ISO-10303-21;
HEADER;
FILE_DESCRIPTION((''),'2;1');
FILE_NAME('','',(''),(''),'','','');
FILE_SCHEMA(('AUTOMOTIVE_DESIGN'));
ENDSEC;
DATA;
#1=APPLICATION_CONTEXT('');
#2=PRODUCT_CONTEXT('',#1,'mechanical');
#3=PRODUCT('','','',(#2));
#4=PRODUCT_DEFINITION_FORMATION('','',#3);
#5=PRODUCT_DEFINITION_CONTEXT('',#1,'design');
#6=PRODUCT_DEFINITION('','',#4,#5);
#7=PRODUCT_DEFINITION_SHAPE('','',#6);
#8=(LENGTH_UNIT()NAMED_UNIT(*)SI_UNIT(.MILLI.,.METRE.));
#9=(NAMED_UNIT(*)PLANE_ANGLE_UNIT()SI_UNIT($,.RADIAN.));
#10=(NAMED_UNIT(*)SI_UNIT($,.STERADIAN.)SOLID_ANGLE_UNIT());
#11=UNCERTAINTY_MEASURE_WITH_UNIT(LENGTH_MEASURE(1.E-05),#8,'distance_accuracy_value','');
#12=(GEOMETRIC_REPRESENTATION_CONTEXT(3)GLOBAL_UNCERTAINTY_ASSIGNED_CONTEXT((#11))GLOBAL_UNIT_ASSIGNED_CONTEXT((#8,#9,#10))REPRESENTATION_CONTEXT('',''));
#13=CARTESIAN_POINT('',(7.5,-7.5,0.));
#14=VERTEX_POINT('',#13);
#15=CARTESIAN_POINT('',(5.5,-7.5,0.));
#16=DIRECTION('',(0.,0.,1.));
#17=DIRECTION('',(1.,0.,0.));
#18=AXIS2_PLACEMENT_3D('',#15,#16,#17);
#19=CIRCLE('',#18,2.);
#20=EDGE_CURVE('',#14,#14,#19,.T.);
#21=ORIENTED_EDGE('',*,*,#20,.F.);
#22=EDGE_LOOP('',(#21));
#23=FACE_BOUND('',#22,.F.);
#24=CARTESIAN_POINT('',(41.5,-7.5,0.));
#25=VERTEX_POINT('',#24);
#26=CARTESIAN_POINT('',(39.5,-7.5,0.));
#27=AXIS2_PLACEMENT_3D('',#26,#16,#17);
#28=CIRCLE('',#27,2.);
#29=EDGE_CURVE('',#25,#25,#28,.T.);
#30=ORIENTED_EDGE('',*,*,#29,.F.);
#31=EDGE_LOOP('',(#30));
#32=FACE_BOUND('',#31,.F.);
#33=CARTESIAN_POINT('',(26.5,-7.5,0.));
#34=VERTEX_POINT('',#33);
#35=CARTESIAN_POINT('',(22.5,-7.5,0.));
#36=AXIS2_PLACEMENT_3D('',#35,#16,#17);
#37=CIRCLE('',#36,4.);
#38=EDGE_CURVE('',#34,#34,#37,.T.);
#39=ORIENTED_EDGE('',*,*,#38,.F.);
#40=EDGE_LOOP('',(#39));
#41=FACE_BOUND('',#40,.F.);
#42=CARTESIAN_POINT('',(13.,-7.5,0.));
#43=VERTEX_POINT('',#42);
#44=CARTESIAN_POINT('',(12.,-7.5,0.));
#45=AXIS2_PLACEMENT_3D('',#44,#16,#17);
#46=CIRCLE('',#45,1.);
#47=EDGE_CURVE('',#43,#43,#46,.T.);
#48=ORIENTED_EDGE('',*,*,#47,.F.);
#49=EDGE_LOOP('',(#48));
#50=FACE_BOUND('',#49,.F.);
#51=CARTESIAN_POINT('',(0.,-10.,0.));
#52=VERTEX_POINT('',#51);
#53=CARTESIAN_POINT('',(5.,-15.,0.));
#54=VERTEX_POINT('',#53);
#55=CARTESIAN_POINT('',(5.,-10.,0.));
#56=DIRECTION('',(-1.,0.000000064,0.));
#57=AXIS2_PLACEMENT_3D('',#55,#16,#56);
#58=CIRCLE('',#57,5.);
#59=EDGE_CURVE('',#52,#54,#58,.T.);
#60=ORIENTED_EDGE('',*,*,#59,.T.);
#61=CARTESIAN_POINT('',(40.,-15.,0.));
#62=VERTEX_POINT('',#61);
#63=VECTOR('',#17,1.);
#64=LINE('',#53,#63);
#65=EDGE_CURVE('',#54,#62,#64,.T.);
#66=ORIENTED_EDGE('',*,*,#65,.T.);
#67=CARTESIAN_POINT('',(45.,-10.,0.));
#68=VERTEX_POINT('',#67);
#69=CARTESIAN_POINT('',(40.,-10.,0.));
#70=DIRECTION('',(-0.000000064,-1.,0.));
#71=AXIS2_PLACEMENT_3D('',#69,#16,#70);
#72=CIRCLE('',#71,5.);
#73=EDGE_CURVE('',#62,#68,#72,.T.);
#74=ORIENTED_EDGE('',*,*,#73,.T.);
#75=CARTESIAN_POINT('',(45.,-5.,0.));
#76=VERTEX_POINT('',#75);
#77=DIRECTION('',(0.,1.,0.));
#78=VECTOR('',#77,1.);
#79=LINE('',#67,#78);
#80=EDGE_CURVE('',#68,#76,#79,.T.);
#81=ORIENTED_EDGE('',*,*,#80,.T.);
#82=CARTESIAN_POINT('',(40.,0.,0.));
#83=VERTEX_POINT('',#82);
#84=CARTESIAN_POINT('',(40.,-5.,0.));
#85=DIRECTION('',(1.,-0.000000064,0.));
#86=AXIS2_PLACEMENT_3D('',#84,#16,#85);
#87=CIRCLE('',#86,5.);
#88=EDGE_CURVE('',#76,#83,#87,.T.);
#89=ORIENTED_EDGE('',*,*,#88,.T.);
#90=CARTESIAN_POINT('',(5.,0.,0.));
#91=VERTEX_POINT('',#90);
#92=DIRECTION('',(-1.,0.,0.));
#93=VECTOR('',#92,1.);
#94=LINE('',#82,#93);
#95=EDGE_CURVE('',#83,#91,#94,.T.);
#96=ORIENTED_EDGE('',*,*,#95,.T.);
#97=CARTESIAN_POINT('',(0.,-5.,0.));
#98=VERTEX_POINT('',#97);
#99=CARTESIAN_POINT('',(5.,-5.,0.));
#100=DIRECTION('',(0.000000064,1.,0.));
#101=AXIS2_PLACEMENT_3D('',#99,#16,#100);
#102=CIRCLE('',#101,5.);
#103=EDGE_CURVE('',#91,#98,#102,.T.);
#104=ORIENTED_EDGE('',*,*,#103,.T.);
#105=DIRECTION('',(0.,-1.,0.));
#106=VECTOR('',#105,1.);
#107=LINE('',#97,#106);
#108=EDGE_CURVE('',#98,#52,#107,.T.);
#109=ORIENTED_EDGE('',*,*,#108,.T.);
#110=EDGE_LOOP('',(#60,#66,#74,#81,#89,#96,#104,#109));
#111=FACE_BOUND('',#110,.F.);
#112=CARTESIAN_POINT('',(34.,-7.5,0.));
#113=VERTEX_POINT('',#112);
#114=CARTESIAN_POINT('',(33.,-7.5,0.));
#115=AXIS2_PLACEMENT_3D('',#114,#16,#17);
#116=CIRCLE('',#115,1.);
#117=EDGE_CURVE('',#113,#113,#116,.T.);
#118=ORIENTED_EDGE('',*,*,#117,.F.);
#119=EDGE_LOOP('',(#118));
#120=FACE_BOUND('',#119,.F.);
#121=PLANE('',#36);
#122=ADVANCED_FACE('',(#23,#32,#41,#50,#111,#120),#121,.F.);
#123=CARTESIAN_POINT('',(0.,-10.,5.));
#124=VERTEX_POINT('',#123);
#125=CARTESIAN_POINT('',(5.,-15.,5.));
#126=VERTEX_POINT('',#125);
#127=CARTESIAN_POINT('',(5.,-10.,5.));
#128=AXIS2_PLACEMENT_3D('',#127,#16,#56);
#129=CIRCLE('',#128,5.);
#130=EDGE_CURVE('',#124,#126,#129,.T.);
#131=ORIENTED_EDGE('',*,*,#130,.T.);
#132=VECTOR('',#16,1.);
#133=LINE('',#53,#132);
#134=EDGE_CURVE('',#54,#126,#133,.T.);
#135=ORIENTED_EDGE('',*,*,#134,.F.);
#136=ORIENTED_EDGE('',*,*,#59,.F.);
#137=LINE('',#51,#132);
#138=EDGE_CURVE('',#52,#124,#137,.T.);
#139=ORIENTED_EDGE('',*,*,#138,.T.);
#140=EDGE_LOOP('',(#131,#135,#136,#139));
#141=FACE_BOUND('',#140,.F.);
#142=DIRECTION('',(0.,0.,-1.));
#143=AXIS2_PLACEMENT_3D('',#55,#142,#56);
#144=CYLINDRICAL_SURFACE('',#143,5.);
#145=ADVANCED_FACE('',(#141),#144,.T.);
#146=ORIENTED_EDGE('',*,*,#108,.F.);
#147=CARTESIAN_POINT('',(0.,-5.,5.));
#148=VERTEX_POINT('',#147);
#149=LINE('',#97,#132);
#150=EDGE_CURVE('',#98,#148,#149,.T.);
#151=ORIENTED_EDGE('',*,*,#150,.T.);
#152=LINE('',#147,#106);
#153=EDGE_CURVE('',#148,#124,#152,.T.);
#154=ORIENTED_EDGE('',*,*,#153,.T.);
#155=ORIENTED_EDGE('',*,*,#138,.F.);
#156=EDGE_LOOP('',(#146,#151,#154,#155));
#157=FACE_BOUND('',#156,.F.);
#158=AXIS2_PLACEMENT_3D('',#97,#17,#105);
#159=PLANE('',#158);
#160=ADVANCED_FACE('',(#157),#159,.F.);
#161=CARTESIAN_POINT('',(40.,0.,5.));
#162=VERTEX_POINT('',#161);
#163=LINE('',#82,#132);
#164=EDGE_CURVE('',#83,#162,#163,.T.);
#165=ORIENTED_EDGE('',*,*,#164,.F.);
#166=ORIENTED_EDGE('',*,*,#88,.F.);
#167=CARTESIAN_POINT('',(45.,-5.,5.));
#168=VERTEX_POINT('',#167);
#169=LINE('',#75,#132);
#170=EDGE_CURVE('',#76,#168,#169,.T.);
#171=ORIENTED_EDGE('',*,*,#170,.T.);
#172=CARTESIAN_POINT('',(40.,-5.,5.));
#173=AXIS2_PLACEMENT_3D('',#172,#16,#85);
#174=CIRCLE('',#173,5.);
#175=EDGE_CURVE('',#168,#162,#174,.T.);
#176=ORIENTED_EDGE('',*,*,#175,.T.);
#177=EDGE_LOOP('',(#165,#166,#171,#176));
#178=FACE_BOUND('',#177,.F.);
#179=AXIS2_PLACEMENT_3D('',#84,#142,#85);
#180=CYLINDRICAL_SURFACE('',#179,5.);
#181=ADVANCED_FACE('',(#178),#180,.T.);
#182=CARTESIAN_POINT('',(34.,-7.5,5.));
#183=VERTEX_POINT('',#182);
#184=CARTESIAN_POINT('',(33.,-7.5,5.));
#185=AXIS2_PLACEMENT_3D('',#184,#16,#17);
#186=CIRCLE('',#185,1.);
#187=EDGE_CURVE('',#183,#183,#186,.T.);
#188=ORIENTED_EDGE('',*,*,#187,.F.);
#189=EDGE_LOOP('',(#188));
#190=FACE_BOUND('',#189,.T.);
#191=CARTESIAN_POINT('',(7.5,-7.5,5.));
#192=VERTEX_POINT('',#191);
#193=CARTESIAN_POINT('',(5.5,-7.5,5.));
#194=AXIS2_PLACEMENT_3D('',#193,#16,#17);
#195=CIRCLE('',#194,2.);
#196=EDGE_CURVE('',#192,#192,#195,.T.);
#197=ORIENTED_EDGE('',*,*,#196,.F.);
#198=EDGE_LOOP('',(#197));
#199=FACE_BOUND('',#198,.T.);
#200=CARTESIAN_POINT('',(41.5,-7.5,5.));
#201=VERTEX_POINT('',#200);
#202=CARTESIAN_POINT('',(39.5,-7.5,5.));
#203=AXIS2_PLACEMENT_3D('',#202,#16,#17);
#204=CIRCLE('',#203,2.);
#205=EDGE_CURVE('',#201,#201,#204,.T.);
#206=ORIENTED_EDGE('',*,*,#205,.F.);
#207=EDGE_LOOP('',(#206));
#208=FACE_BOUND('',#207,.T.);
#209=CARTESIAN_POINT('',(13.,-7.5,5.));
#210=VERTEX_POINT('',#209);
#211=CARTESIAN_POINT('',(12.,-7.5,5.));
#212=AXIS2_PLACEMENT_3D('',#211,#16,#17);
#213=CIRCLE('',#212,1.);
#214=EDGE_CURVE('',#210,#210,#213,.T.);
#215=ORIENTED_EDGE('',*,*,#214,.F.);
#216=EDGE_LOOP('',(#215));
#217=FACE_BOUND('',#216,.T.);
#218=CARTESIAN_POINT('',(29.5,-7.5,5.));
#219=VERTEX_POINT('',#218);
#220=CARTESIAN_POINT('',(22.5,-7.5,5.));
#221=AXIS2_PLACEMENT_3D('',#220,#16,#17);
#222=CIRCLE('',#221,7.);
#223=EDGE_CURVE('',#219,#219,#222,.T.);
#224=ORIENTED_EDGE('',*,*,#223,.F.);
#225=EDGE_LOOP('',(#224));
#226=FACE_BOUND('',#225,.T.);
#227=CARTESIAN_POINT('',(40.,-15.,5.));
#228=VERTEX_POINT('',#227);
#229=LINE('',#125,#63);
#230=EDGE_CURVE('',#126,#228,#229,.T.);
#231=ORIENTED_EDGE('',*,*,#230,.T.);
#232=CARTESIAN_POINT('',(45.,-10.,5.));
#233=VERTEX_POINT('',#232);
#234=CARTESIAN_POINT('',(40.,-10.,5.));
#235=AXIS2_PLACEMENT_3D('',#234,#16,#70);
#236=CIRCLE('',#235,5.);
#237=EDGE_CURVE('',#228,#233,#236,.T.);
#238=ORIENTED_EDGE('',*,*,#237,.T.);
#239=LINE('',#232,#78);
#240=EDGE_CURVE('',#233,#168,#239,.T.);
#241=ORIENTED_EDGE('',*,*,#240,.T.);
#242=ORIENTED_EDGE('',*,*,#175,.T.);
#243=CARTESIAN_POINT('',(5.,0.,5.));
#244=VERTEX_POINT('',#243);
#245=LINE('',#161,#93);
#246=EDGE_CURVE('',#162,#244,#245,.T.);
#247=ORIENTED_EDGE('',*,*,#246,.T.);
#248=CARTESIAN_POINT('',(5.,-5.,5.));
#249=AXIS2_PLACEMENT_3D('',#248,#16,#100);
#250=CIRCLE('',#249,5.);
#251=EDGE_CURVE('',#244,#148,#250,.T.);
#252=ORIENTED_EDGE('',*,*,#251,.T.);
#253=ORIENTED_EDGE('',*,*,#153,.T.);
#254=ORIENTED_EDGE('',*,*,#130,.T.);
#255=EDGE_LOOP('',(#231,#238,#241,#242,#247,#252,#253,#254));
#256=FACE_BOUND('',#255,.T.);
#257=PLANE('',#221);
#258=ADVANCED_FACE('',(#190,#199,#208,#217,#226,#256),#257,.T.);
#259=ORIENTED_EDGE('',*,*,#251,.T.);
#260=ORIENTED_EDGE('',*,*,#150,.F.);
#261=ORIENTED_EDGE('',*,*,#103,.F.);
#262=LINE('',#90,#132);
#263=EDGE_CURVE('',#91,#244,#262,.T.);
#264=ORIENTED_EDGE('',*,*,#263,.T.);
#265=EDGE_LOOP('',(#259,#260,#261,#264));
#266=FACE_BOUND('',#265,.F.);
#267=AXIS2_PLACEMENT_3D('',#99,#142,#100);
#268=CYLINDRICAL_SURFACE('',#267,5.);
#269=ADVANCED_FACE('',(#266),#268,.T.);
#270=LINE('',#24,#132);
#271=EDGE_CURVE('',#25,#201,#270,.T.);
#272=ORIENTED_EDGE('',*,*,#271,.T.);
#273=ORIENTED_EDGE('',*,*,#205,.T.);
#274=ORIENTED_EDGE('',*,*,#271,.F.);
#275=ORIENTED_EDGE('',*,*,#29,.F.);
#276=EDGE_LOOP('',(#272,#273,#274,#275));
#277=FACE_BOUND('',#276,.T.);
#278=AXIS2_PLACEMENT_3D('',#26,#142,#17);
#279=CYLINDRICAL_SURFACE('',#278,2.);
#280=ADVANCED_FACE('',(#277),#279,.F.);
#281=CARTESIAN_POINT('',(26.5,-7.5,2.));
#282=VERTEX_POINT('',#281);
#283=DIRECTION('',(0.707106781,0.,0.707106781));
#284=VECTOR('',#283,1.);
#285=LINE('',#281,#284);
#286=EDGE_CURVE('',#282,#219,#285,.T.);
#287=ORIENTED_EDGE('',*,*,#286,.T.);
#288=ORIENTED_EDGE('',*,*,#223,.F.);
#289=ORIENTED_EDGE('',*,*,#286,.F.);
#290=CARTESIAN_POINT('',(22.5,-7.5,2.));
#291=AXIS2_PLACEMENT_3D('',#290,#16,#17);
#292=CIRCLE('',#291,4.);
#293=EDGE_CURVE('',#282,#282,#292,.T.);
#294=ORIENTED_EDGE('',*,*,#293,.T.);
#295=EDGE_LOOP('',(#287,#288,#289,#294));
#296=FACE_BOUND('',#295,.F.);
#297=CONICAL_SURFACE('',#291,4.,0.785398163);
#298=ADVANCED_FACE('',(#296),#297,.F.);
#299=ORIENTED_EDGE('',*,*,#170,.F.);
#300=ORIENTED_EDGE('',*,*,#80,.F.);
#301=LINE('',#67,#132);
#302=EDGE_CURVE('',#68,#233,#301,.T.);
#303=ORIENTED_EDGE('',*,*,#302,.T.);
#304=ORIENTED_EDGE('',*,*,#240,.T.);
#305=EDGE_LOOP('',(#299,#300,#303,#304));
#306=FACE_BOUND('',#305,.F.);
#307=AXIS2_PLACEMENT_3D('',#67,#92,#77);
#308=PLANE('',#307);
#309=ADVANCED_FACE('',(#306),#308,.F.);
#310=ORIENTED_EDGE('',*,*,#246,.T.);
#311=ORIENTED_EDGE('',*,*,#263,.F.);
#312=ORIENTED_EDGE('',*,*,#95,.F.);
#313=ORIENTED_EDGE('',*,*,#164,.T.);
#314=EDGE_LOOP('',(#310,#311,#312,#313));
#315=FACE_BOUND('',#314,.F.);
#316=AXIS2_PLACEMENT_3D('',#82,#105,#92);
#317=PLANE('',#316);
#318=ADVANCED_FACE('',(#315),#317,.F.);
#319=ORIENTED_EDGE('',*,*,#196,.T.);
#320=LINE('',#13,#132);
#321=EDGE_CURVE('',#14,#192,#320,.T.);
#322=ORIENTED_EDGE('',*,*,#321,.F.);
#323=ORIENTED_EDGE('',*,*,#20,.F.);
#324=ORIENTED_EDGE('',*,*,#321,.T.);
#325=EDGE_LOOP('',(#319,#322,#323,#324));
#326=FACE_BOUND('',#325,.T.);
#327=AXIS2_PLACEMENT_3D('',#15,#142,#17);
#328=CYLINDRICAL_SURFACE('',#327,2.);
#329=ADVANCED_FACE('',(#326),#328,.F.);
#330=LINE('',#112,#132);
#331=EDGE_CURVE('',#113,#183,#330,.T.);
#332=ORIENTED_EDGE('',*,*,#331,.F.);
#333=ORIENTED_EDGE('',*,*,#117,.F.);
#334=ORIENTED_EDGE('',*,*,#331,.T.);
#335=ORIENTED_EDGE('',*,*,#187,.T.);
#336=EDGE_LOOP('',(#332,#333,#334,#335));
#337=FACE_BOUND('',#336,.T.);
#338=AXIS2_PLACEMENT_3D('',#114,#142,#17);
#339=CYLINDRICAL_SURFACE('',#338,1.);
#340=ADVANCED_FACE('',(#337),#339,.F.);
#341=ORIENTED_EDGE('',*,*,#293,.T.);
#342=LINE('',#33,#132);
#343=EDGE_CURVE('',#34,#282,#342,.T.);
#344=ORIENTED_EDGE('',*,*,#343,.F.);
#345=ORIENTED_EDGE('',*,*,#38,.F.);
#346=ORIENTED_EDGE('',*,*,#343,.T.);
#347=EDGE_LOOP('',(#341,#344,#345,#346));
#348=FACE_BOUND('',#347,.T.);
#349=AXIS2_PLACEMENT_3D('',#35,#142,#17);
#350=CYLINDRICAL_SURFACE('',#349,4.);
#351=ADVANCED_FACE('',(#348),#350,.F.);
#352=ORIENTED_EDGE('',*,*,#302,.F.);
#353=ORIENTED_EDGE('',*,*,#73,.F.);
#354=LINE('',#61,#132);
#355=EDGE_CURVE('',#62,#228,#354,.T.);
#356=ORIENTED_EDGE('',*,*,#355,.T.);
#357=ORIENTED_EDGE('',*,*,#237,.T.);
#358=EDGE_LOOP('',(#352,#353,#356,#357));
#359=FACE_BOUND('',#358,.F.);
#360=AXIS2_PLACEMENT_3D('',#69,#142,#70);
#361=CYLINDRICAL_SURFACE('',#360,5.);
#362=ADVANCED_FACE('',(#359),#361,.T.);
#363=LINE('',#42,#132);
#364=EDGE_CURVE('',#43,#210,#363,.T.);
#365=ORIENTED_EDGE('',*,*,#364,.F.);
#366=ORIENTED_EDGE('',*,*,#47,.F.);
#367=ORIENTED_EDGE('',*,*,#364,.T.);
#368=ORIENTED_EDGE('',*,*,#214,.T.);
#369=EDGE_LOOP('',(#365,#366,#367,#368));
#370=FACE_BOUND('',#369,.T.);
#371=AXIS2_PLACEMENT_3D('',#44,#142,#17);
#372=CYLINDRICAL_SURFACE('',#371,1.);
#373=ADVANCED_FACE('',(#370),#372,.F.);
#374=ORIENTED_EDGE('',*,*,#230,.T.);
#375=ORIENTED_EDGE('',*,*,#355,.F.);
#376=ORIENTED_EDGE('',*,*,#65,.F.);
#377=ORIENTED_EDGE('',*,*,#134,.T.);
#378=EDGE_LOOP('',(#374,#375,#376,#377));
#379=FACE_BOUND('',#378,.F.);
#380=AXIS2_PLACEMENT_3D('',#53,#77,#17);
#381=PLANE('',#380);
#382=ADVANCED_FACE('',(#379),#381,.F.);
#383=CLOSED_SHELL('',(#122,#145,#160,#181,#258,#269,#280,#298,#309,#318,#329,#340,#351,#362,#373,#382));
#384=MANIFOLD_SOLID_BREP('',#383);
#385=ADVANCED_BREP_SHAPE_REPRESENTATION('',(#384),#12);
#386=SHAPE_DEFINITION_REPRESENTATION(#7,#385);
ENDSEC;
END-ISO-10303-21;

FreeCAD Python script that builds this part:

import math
import FreeCAD as App
import Part
import Sketcher

V = App.Vector


def edges_at(feature, points):
    """Names of the edges that pass closest to the given points."""
    edges = feature.Shape.Edges
    near = lambda p: min(range(len(edges)), key=lambda i: edges[i].distToShape(Part.Vertex(*p))[0])
    return sorted({f"Edge{near(p) + 1}" for p in points})

doc = App.newDocument("Part")
body = doc.addObject("PartDesign::Body", "Body")

sketch1 = body.newObject("Sketcher::SketchObject", "Sketch")
sketch1.AttachmentSupport = (doc.getObject("XY_Plane"), [""])
sketch1.MapMode = "FlatFace"
sketch1.addGeometry(Part.LineSegment(V(40, 0, 0), V(5, 0, 0)), False)
sketch1.addGeometry(Part.ArcOfCircle(Part.Circle(V(5, -5, 0), V(0, 0, 1), 5), math.radians(90), math.radians(180)), False)
sketch1.addGeometry(Part.LineSegment(V(0, -5, 0), V(0, -10, 0)), False)
sketch1.addGeometry(Part.ArcOfCircle(Part.Circle(V(5, -10, 0), V(0, 0, 1), 5), math.radians(180), math.radians(270)), False)
sketch1.addGeometry(Part.LineSegment(V(5, -15, 0), V(40, -15, 0)), False)
sketch1.addGeometry(Part.ArcOfCircle(Part.Circle(V(40, -10, 0), V(0, 0, 1), 5), math.radians(-90), math.radians(0)), False)
sketch1.addGeometry(Part.LineSegment(V(45, -10, 0), V(45, -5, 0)), False)
sketch1.addGeometry(Part.ArcOfCircle(Part.Circle(V(40, -5, 0), V(0, 0, 1), 5), math.radians(0), math.radians(90)), False)
sketch1.addGeometry(Part.Circle(V(5.5, -7.5, 0), V(0, 0, 1), 2), False)
sketch1.addGeometry(Part.Circle(V(12, -7.5, 0), V(0, 0, 1), 1), False)
sketch1.addGeometry(Part.Circle(V(22.5, -7.5, 0), V(0, 0, 1), 4), False)
sketch1.addGeometry(Part.Circle(V(33, -7.5, 0), V(0, 0, 1), 1), False)
sketch1.addGeometry(Part.Circle(V(39.5, -7.5, 0), V(0, 0, 1), 2), False)
sketch1.addConstraint(Sketcher.Constraint("Tangent", 0, 2, 1, 1))
sketch1.addConstraint(Sketcher.Constraint("Tangent", 1, 2, 2, 1))
sketch1.addConstraint(Sketcher.Constraint("Tangent", 2, 2, 3, 1))
sketch1.addConstraint(Sketcher.Constraint("Tangent", 3, 2, 4, 1))
sketch1.addConstraint(Sketcher.Constraint("Tangent", 4, 2, 5, 1))
sketch1.addConstraint(Sketcher.Constraint("Tangent", 5, 2, 6, 1))
sketch1.addConstraint(Sketcher.Constraint("Tangent", 6, 2, 7, 1))
sketch1.addConstraint(Sketcher.Constraint("Tangent", 7, 2, 0, 1))
sketch1.addConstraint(Sketcher.Constraint("Horizontal", 0))
sketch1.addConstraint(Sketcher.Constraint("Vertical", 2))
sketch1.addConstraint(Sketcher.Constraint("Horizontal", 4))
sketch1.addConstraint(Sketcher.Constraint("Vertical", 6))
sketch1.addConstraint(Sketcher.Constraint("Equal", 1, 3))
sketch1.addConstraint(Sketcher.Constraint("Equal", 3, 5))
sketch1.addConstraint(Sketcher.Constraint("Equal", 5, 7))
sketch1.addConstraint(Sketcher.Constraint("Equal", 9, 11))
sketch1.addConstraint(Sketcher.Constraint("Equal", 8, 12))
sketch1.addConstraint(Sketcher.Constraint("PointOnObject", 0, 2, -1))
sketch1.addConstraint(Sketcher.Constraint("PointOnObject", 1, 2, -2))
sketch1.addConstraint(Sketcher.Constraint("Horizontal", 8, 3, 9, 3))
sketch1.addConstraint(Sketcher.Constraint("Horizontal", 9, 3, 10, 3))
sketch1.addConstraint(Sketcher.Constraint("Horizontal", 10, 3, 11, 3))
sketch1.addConstraint(Sketcher.Constraint("Horizontal", 11, 3, 12, 3))
sketch1.addConstraint(Sketcher.Constraint("Diameter", 8, 4.0))
sketch1.addConstraint(Sketcher.Constraint("Diameter", 9, 2.0))
sketch1.addConstraint(Sketcher.Constraint("Diameter", 10, 8.0))
sketch1.addConstraint(Sketcher.Constraint("Radius", 1, 5.0))
sketch1.addConstraint(Sketcher.Constraint("DistanceX", 0, 2, 0, 1, 35.0))
sketch1.addConstraint(Sketcher.Constraint("DistanceY", 2, 2, 2, 1, 5.0))
sketch1.addConstraint(Sketcher.Constraint("DistanceX", -1, 1, 9, 3, 12.0))
sketch1.addConstraint(Sketcher.Constraint("DistanceX", -1, 1, 11, 3, 33.0))
sketch1.addConstraint(Sketcher.Constraint("DistanceX", 8, 3, 10, 3, 17.0))
sketch1.addConstraint(Sketcher.Constraint("DistanceX", 10, 3, 12, 3, 17.0))
sketch1.addConstraint(Sketcher.Constraint("DistanceX", -1, 1, 8, 3, 5.5))
sketch1.addConstraint(Sketcher.Constraint("DistanceY", 8, 3, -1, 1, 7.5))
pad1 = body.newObject("PartDesign::Pad", "Pad")
pad1.Profile = sketch1
pad1.Length = 5
doc.recompute()

chamfer = body.newObject("PartDesign::Chamfer", "Chamfer")
chamfer.Base = (pad1, edges_at(pad1, [(18.5, -7.5, 5)]))
chamfer.Size = 3

doc.recompute()
